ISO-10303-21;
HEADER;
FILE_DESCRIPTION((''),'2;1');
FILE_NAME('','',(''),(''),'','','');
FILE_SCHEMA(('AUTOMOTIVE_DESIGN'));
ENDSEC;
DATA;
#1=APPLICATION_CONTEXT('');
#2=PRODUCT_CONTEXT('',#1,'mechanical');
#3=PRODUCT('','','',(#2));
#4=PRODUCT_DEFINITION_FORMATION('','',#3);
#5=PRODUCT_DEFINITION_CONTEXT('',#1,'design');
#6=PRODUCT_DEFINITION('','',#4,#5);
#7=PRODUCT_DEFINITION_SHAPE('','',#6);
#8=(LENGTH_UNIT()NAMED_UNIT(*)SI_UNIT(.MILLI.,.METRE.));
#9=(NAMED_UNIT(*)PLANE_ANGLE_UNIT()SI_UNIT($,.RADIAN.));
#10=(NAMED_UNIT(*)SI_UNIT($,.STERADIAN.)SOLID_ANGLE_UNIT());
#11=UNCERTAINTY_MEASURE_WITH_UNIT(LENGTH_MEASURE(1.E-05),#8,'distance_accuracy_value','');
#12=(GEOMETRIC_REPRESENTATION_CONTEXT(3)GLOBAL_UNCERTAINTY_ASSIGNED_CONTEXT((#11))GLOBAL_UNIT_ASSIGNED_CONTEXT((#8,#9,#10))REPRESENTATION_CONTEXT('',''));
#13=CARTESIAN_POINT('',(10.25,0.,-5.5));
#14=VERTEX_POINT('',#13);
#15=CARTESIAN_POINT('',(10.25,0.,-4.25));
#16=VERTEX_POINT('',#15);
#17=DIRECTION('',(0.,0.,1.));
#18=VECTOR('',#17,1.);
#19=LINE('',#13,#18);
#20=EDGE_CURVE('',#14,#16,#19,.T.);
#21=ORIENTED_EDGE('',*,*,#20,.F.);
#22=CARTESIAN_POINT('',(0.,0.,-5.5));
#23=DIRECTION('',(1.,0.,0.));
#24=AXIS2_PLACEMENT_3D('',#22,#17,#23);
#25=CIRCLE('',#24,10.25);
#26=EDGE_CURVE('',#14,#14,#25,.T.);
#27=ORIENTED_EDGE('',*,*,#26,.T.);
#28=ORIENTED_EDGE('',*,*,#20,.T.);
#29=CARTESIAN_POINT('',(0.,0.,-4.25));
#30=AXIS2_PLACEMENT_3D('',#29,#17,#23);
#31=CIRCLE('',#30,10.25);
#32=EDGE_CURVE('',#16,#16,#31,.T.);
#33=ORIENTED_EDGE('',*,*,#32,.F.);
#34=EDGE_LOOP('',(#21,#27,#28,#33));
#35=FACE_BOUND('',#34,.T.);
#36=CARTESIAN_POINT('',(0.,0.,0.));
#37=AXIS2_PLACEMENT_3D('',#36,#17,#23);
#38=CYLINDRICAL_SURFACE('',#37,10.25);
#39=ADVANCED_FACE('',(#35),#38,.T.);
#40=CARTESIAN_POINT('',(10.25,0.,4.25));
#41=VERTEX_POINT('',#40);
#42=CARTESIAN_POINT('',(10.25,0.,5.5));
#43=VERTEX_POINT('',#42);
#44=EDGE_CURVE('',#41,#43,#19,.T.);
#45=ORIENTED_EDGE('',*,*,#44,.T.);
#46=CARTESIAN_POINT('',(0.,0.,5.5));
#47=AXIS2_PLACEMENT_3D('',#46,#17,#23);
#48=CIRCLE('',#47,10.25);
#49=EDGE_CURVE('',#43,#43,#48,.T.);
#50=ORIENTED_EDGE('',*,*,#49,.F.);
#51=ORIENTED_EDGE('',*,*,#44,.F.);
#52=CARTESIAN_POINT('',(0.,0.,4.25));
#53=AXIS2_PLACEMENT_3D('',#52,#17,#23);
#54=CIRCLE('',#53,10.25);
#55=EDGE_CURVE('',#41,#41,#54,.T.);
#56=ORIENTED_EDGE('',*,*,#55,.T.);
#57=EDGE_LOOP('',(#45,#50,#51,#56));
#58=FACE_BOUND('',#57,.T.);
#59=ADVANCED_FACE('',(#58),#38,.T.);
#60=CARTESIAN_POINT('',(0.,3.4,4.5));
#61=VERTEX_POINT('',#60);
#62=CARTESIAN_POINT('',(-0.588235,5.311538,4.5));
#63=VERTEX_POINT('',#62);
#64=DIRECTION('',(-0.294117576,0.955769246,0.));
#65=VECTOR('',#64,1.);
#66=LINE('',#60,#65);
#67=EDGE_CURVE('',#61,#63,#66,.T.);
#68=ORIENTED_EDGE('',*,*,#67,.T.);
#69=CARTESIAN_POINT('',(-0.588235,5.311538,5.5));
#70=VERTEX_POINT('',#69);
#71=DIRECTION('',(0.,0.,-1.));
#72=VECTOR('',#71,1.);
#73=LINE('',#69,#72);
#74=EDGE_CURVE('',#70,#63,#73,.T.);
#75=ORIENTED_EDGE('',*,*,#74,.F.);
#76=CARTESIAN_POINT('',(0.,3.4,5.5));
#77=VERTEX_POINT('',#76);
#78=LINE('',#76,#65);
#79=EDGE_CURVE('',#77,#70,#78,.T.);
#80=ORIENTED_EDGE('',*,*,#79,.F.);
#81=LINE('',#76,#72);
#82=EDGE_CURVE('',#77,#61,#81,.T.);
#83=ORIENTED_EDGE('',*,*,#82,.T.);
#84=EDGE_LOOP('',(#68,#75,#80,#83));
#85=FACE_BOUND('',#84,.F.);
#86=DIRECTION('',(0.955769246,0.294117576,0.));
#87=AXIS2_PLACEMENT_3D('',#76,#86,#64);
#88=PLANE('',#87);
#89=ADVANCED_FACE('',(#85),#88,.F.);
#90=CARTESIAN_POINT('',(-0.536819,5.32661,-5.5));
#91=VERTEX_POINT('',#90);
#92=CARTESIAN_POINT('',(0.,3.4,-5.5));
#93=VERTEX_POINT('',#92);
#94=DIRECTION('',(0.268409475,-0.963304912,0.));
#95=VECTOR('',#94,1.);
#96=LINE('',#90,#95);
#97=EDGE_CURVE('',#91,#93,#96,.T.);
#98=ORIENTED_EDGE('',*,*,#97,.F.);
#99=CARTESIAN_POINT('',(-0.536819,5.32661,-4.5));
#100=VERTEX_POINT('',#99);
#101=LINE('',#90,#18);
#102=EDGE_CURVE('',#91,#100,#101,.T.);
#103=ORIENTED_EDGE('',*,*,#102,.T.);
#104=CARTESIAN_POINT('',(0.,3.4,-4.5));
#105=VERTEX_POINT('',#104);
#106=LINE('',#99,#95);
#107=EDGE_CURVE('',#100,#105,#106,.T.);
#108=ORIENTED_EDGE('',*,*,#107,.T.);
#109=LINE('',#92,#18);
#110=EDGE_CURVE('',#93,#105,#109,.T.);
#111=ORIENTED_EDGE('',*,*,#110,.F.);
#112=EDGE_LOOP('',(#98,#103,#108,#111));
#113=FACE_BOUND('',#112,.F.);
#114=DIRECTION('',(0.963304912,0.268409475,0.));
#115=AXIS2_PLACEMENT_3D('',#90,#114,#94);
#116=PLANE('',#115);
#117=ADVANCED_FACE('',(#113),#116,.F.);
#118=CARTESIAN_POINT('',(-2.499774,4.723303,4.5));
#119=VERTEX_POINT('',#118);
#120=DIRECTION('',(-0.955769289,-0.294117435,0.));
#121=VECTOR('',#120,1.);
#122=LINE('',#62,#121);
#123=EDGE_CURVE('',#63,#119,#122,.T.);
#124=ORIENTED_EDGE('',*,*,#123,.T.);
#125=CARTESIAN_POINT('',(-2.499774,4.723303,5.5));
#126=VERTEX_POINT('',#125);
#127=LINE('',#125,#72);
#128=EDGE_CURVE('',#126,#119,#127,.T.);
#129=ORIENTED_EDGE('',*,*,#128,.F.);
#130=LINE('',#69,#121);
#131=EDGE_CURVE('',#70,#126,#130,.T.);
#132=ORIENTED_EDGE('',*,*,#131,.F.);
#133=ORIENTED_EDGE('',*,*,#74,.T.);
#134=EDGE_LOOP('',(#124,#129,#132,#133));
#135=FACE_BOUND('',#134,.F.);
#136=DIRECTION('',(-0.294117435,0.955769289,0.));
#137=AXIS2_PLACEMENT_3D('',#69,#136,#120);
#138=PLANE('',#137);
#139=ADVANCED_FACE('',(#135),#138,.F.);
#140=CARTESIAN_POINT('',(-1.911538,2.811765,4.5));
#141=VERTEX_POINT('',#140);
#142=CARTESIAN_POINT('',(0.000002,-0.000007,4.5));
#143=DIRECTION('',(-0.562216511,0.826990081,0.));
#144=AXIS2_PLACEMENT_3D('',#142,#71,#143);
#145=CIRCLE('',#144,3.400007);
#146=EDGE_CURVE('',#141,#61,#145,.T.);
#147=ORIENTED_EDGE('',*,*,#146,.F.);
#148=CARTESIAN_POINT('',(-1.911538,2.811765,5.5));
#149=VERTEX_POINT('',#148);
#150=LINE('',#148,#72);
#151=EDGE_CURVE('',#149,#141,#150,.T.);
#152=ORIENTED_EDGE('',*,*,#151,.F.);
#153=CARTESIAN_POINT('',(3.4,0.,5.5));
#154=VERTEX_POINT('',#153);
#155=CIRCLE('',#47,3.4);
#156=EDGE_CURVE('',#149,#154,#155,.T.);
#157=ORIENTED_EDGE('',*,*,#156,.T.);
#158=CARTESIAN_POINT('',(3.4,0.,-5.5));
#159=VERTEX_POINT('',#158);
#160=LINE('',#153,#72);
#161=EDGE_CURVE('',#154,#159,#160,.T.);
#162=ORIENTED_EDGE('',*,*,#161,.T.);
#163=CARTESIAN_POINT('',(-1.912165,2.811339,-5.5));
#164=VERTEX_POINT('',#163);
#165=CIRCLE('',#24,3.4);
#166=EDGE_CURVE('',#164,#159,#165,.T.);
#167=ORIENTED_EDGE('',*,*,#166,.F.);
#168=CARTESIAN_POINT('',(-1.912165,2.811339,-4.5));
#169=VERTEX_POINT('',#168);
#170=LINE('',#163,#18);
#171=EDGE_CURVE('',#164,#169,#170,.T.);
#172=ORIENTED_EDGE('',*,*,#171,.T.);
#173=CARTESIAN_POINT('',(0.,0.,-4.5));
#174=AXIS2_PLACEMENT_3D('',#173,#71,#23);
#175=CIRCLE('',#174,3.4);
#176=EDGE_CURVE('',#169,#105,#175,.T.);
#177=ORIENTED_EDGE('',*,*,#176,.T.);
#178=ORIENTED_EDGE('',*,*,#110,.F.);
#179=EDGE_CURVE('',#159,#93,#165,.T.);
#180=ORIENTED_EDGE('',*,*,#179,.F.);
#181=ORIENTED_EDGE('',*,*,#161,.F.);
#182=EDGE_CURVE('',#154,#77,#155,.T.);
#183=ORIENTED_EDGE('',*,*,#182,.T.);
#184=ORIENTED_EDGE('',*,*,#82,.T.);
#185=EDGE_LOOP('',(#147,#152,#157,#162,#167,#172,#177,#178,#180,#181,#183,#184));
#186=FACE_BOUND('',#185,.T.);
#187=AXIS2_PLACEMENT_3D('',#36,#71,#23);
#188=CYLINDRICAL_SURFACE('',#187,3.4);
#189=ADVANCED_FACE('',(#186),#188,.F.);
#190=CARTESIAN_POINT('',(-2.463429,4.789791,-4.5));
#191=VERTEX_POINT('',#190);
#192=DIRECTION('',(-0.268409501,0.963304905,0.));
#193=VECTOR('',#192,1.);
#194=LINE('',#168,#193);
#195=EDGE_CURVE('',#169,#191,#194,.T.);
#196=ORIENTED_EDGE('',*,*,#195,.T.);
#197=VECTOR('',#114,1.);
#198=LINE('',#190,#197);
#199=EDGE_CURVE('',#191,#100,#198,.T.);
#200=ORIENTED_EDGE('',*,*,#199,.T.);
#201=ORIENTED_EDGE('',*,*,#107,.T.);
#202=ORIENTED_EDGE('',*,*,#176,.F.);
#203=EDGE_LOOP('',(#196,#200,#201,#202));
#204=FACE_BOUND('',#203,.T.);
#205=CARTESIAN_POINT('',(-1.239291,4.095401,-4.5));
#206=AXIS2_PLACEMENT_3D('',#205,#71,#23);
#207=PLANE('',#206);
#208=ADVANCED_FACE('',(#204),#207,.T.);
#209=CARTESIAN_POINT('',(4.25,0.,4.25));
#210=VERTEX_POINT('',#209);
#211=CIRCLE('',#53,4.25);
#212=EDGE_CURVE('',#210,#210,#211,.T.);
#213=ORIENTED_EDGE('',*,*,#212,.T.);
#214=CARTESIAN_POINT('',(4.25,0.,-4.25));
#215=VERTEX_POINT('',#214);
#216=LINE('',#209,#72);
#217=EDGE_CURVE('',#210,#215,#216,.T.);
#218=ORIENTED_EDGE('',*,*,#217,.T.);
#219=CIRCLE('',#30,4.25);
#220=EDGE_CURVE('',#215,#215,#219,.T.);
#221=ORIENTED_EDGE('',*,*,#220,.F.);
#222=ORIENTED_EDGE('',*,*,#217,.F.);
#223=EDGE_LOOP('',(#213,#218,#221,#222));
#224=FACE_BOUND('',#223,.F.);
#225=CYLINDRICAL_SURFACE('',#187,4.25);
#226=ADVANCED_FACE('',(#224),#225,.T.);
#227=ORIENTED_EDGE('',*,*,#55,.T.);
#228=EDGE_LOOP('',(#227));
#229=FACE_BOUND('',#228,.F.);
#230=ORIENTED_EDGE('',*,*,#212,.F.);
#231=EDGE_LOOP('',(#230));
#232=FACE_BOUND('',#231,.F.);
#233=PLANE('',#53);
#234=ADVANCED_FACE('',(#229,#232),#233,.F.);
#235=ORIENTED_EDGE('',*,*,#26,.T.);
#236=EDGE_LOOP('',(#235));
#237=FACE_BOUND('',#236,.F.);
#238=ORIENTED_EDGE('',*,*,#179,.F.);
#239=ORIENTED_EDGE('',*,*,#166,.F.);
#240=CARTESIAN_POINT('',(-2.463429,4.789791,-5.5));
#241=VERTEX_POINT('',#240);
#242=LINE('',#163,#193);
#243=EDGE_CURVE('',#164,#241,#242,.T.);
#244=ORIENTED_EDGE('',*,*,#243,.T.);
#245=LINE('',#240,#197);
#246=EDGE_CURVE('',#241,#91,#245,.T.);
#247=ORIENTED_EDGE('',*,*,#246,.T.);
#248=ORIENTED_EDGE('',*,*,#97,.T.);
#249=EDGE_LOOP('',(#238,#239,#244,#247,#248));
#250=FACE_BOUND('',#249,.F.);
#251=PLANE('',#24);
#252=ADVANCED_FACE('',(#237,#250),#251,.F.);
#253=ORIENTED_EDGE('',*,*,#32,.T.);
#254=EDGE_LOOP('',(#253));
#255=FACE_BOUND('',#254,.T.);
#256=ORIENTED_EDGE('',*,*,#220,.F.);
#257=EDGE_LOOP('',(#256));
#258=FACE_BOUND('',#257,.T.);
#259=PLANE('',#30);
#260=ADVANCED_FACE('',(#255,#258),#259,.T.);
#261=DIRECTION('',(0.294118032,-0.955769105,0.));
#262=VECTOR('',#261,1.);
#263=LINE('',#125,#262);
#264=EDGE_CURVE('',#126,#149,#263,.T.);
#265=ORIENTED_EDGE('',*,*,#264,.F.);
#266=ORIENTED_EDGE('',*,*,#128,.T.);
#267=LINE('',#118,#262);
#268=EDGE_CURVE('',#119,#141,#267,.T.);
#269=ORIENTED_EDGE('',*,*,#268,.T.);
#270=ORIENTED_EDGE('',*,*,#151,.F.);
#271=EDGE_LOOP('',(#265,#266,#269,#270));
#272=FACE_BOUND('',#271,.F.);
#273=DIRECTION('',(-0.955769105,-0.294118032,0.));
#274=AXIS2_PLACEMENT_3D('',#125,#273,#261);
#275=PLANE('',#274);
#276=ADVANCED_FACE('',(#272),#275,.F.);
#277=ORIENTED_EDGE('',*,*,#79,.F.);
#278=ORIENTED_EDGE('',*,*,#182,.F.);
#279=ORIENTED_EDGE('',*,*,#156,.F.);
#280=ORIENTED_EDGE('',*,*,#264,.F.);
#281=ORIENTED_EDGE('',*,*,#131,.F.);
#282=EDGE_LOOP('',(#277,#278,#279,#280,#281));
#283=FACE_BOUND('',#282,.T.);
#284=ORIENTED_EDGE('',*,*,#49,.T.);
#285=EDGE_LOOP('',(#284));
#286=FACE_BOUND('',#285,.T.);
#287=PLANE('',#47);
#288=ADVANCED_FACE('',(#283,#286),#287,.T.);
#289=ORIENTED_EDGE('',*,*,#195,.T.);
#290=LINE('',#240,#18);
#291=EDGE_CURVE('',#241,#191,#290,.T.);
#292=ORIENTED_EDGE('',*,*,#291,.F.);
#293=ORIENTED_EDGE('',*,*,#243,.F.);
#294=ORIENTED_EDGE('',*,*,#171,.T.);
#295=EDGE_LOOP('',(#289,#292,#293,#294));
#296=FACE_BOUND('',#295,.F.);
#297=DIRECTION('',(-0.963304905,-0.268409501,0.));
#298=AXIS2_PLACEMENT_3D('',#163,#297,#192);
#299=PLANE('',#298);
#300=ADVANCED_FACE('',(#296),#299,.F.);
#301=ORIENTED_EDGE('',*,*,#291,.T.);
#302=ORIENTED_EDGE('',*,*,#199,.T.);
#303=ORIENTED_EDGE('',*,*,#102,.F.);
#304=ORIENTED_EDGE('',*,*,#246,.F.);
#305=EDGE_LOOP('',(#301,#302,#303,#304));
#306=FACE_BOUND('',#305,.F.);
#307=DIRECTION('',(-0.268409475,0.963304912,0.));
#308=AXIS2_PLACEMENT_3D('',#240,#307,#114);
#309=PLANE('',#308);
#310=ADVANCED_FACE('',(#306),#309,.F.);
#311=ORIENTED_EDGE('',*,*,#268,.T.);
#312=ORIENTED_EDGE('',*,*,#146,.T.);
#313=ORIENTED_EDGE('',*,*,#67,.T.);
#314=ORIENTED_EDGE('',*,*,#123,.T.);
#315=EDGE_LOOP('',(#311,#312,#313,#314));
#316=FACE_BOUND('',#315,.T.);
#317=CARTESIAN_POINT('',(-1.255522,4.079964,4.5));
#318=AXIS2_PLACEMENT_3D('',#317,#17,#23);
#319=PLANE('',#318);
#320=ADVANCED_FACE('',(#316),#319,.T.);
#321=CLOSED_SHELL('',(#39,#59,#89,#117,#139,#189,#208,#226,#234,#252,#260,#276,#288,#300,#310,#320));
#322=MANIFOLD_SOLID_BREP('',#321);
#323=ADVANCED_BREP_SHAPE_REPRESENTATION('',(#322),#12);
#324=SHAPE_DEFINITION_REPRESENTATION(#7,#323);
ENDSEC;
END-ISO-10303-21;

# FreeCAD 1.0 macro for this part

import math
import FreeCAD as App
import Part
import Sketcher

doc = App.newDocument("Part")
body = doc.addObject("PartDesign::Body", "Body")

sketch1 = body.newObject("Sketcher::SketchObject", "Sketch")
sketch1.AttachmentSupport = (doc.getObject("XY_Plane"), [""])
sketch1.MapMode = "FlatFace"
sketch1.addGeometry([
    Part.Circle(App.Vector(0, 0, 0), App.Vector(0, 0, 1), 10.2),
    Part.Circle(App.Vector(0, 0, 0), App.Vector(0, 0, 1), 3.4),
], False)
sketch1.addConstraint([
    Sketcher.Constraint("Coincident", 0, 3, -1, 1),
    Sketcher.Constraint("Coincident", 1, 3, -1, 1),
    Sketcher.Constraint("Diameter", 0, 20.5),
    Sketcher.Constraint("Diameter", 1, 6.8),
])
pad1 = body.newObject("PartDesign::Pad", "Pad")
pad1.Profile = sketch1
pad1.Length = 11
pad1.Midplane = True

sketch2 = body.newObject("Sketcher::SketchObject", "Sketch001")
sketch2.AttachmentSupport = (doc.getObject("XY_Plane"), [""])
sketch2.MapMode = "FlatFace"
sketch2.addGeometry([
    Part.Circle(App.Vector(0, 0, 0), App.Vector(0, 0, 1), 10.2),
    Part.Circle(App.Vector(0, 0, 0), App.Vector(0, 0, 1), 4.2),
], False)
sketch2.addConstraint([
    Sketcher.Constraint("Coincident", 0, 3, -1, 1),
    Sketcher.Constraint("Coincident", 1, 3, -1, 1),
    Sketcher.Constraint("Diameter", 0, 20.5),
    Sketcher.Constraint("Diameter", 1, 8.5),
])
pocket1 = body.newObject("PartDesign::Pocket", "Pocket")
pocket1.Profile = sketch2
pocket1.Length = 8.5
pocket1.Midplane = True

sketch3 = body.newObject("Sketcher::SketchObject", "Sketch002")
sketch3.AttachmentSupport = (doc.getObject("XY_Plane"), [""])
sketch3.MapMode = "FlatFace"
sketch3.AttachmentOffset = App.Placement(App.Vector(0, 0, 5.5), App.Rotation())
sketch3.addGeometry([
    Part.ArcOfCircle(Part.Circle(App.Vector(0, 0, 0), App.Vector(0, 0, 1), 3.4), math.radians(90), math.radians(124)),
    Part.LineSegment(App.Vector(0, 3.4, 0), App.Vector(-0.6, 5.3, 0)),
    Part.LineSegment(App.Vector(-0.6, 5.3, 0), App.Vector(-2.5, 4.7, 0)),
    Part.LineSegment(App.Vector(-2.5, 4.7, 0), App.Vector(-1.9, 2.8, 0)),
], False)
sketch3.addConstraint([
    Sketcher.Constraint("Coincident", 0, 1, 1, 1),
    Sketcher.Constraint("Coincident", 1, 2, 2, 1),
    Sketcher.Constraint("Coincident", 2, 2, 3, 1),
    Sketcher.Constraint("Coincident", 3, 2, 0, 2),
    Sketcher.Constraint("Coincident", 0, 3, -1, 1),
    Sketcher.Constraint("PointOnObject", 0, 1, -2),
    Sketcher.Constraint("Perpendicular", 1, 2),
    Sketcher.Constraint("Perpendicular", 2, 3),
    Sketcher.Constraint("Equal", 1, 2),
    Sketcher.Constraint("Equal", 2, 3),
    Sketcher.Constraint("Distance", 1, 1.999999),
    Sketcher.Constraint("DistanceY", -1, 1, 0, 1, 3.4),
])
pocket2 = body.newObject("PartDesign::Pocket", "Pocket001")
pocket2.Profile = sketch3
pocket2.Length = 1

sketch4 = body.newObject("Sketcher::SketchObject", "Sketch003")
sketch4.AttachmentSupport = (doc.getObject("XY_Plane"), [""])
sketch4.MapMode = "FlatFace"
sketch4.AttachmentOffset = App.Placement(App.Vector(0, 0, -5.5), App.Rotation())
sketch4.addGeometry([
    Part.ArcOfCircle(Part.Circle(App.Vector(0.2, -0.7, 0), App.Vector(0, 0, 1), 4.1), math.radians(93), math.radians(121)),
    Part.LineSegment(App.Vector(-1.9, 2.8, 0), App.Vector(-2.5, 4.8, 0)),
    Part.LineSegment(App.Vector(-2.5, 4.8, 0), App.Vector(-0.5, 5.3, 0)),
    Part.LineSegment(App.Vector(-0.5, 5.3, 0), App.Vector(0, 3.4, 0)),
], False)
sketch4.addConstraint([
    Sketcher.Constraint("Coincident", 0, 2, 1, 1),
    Sketcher.Constraint("Coincident", 1, 2, 2, 1),
    Sketcher.Constraint("Coincident", 2, 2, 3, 1),
    Sketcher.Constraint("Coincident", 3, 2, 0, 1),
    Sketcher.Constraint("PointOnObject", 3, 2, -2),
    Sketcher.Constraint("Perpendicular", 1, 2),
    Sketcher.Constraint("Perpendicular", 2, 3),
    Sketcher.Constraint("Equal", 2, 3),
    Sketcher.Constraint("Distance", 2, 2.0),
    Sketcher.Constraint("DistanceY", -1, 1, 3, 2, 3.4),
    Sketcher.Constraint("Radius", 0, 4.076067),
    Sketcher.Constraint("DistanceY", -1, 1, 0, 2, 2.811339),
    Sketcher.Constraint("DistanceX", 1, 2, -1, 1, 2.463429),
])
pocket3 = body.newObject("PartDesign::Pocket", "Pocket002")
pocket3.Profile = sketch4
pocket3.Length = 1
pocket3.Reversed = True

doc.recompute()
